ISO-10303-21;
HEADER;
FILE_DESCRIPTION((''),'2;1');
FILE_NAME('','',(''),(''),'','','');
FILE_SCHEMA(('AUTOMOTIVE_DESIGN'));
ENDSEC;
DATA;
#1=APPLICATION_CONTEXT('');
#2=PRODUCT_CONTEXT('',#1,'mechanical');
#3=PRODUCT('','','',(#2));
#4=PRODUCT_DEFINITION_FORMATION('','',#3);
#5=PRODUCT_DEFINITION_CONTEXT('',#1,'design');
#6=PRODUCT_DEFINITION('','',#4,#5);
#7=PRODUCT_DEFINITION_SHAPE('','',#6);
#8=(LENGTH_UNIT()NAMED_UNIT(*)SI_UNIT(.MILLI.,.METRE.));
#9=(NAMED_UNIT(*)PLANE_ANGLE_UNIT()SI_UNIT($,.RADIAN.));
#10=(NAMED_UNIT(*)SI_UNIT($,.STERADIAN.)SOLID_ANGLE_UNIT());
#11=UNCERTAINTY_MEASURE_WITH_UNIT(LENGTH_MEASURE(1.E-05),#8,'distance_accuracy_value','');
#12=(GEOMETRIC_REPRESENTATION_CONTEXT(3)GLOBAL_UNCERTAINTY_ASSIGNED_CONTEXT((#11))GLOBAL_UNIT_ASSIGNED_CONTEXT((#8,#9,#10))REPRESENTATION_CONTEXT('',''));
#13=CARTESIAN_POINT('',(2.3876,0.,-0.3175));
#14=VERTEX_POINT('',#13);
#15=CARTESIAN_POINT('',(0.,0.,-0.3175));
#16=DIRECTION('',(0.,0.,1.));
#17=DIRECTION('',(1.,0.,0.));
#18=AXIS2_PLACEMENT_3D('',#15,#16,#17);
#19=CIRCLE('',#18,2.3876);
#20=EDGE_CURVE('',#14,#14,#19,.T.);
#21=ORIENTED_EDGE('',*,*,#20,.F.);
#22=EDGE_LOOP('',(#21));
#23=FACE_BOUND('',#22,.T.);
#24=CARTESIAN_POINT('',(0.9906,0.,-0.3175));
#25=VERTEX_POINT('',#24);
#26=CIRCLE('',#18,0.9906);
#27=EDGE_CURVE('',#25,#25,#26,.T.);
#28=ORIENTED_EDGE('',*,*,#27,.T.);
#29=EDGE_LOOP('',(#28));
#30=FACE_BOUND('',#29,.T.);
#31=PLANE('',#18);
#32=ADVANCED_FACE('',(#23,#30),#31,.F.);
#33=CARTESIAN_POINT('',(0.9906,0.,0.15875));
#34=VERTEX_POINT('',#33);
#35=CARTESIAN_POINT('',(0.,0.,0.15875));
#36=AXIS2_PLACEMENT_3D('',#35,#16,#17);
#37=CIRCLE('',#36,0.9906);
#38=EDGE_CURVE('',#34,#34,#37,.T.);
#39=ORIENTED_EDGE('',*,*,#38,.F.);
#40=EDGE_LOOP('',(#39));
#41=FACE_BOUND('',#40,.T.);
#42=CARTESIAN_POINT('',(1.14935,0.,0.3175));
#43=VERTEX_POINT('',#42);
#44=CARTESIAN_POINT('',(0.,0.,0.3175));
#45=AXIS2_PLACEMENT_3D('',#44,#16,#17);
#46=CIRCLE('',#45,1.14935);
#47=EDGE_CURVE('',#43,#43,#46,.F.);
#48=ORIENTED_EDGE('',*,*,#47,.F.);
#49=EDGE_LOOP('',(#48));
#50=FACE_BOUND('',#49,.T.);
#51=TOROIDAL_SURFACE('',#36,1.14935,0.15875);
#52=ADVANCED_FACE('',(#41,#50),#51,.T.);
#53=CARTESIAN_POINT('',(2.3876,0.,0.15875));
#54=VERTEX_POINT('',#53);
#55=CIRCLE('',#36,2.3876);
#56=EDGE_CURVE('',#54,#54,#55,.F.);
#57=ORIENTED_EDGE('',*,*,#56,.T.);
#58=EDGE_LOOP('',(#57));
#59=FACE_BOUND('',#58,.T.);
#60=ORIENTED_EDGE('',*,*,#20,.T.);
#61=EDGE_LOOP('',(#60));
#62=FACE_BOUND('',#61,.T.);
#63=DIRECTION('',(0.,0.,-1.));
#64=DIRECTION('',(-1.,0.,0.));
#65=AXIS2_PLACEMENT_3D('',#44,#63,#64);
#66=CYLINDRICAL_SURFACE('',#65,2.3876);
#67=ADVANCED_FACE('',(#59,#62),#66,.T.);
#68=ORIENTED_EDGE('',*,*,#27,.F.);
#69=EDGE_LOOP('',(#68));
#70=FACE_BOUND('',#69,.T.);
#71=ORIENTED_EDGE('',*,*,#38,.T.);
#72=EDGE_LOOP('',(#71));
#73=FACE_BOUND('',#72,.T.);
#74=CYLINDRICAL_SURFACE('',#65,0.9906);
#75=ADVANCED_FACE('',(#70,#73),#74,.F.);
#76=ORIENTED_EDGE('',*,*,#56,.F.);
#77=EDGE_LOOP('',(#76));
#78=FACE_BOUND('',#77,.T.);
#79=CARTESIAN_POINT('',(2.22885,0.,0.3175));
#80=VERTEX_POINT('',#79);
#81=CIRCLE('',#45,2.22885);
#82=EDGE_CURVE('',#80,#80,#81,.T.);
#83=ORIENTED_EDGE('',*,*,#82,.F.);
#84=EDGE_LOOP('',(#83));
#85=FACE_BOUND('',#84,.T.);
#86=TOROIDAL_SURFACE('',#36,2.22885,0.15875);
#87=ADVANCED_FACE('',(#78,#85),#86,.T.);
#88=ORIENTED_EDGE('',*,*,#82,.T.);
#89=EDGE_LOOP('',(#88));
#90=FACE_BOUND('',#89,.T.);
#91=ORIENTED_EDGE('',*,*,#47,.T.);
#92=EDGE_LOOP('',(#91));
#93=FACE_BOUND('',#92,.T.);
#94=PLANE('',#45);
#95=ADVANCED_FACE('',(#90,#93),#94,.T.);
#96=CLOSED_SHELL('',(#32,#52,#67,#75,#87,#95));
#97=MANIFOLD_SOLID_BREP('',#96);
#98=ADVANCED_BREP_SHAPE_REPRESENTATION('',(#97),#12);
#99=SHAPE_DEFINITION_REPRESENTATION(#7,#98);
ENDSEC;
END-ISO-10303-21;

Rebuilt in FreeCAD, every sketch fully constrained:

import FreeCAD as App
import Part
import Sketcher
from FreeCAD import Vector
Q = App.Units.Quantity


def edges_at(feature, points):
    """Names of the edges that pass closest to the given points."""
    edges = feature.Shape.Edges
    near = lambda p: min(range(len(edges)), key=lambda i: edges[i].distToShape(Part.Vertex(*p))[0])
    return sorted({f"Edge{near(p) + 1}" for p in points})

doc = App.newDocument("Part")
body = doc.addObject("PartDesign::Body", "Body")

sketch1 = doc.addObject("Sketcher::SketchObject", "Sketch")
body.addObject(sketch1)
sketch1.AttachmentSupport = (doc.XY_Plane, [""])
sketch1.MapMode = "FlatFace"
sketch1.addGeometry(Part.Circle(Vector(0, 0, 0), Vector(0, 0, 1), 2.4), False)
sketch1.addGeometry(Part.Circle(Vector(0, 0, 0), Vector(0, 0, 1), 1), False)
sketch1.addConstraint(Sketcher.Constraint("Coincident", 0, 3, -1, 1))
sketch1.addConstraint(Sketcher.Constraint("Coincident", 1, 3, -1, 1))
sketch1.addConstraint(Sketcher.Constraint("Diameter", 0, Q("0.188 in")))
sketch1.addConstraint(Sketcher.Constraint("Diameter", 1, Q("0.078 in")))
pad1 = doc.addObject("PartDesign::Pad", "Pad")
body.addObject(pad1)
pad1.Profile = sketch1
pad1.Type = "TwoLengths"
pad1.Length = Q("0.0125 in")
pad1.Length2 = Q("0.0125 in")
doc.recompute()

fillet = doc.addObject("PartDesign::Fillet", "Fillet")
body.addObject(fillet)
fillet.Base = (pad1, edges_at(pad1, [(-2.388, 0, 0.318), (-0.991, 0, 0.318)]))
fillet.Radius = 0.15875

doc.recompute()
